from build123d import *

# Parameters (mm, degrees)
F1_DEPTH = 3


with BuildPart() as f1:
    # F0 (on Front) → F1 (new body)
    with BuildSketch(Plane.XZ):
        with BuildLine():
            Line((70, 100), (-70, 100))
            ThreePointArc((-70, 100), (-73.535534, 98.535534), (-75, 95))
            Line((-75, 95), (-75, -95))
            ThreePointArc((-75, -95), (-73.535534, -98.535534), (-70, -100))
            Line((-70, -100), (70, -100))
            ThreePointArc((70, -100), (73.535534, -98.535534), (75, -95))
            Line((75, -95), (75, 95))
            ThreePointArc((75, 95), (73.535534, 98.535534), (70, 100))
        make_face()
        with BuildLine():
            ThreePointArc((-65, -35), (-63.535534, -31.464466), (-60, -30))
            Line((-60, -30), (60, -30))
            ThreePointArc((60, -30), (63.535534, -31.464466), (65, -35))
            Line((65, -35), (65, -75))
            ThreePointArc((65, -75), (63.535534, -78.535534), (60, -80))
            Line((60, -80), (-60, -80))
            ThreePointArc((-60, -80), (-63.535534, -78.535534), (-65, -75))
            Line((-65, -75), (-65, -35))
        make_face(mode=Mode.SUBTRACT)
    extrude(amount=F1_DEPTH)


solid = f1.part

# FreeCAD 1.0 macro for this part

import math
import FreeCAD as App
import Part
import Sketcher
from FreeCAD import Vector
Q = App.Units.Quantity

doc = App.newDocument("Part")
body = doc.addObject("PartDesign::Body", "Body")

sketch1 = body.newObject("Sketcher::SketchObject", "Sketch")
sketch1.AttachmentSupport = (doc.getObject("XZ_Plane"), [""])
sketch1.MapMode = "FlatFace"
sketch1.addGeometry(Part.LineSegment(Vector(70, 100, 0), Vector(-70, 100, 0)), False)
sketch1.addGeometry(Part.ArcOfCircle(Part.Circle(Vector(-70, 95, 0), Vector(0, 0, 1), 5), math.radians(89.999996), math.radians(180.000004)), False)
sketch1.addGeometry(Part.LineSegment(Vector(-75, 95, 0), Vector(-75, -95, 0)), False)
sketch1.addGeometry(Part.ArcOfCircle(Part.Circle(Vector(-70, -95, 0), Vector(0, 0, 1), 5), math.radians(179.999996), math.radians(270.000004)), False)
sketch1.addGeometry(Part.LineSegment(Vector(-70, -100, 0), Vector(70, -100, 0)), False)
sketch1.addGeometry(Part.ArcOfCircle(Part.Circle(Vector(70, -95, 0), Vector(0, 0, 1), 5), math.radians(-90.000004), math.radians(0.000004)), False)
sketch1.addGeometry(Part.LineSegment(Vector(75, -95, 0), Vector(75, 95, 0)), False)
sketch1.addGeometry(Part.ArcOfCircle(Part.Circle(Vector(70, 95, 0), Vector(0, 0, 1), 5), math.radians(-0.000004), math.radians(90.000004)), False)
sketch1.addGeometry(Part.LineSegment(Vector(-65, -75, 0), Vector(-65, -35, 0)), False)
sketch1.addGeometry(Part.ArcOfCircle(Part.Circle(Vector(-60, -35, 0), Vector(0, 0, 1), 5), math.radians(89.999996), math.radians(180.000004)), False)
sketch1.addGeometry(Part.LineSegment(Vector(-60, -30, 0), Vector(60, -30, 0)), False)
sketch1.addGeometry(Part.ArcOfCircle(Part.Circle(Vector(60, -35, 0), Vector(0, 0, 1), 5), math.radians(-0.000004), math.radians(90.000004)), False)
sketch1.addGeometry(Part.LineSegment(Vector(65, -35, 0), Vector(65, -75, 0)), False)
sketch1.addGeometry(Part.ArcOfCircle(Part.Circle(Vector(60, -75, 0), Vector(0, 0, 1), 5), math.radians(-90.000004), math.radians(0.000004)), False)
sketch1.addGeometry(Part.LineSegment(Vector(60, -80, 0), Vector(-60, -80, 0)), False)
sketch1.addGeometry(Part.ArcOfCircle(Part.Circle(Vector(-60, -75, 0), Vector(0, 0, 1), 5), math.radians(179.999996), math.radians(270.000004)), False)
sketch1.addConstraint(Sketcher.Constraint("Tangent", 0, 2, 1, 1))
sketch1.addConstraint(Sketcher.Constraint("Tangent", 1, 2, 2, 1))
sketch1.addConstraint(Sketcher.Constraint("Tangent", 2, 2, 3, 1))
sketch1.addConstraint(Sketcher.Constraint("Tangent", 3, 2, 4, 1))
sketch1.addConstraint(Sketcher.Constraint("Tangent", 4, 2, 5, 1))
sketch1.addConstraint(Sketcher.Constraint("Tangent", 5, 2, 6, 1))
sketch1.addConstraint(Sketcher.Constraint("Tangent", 6, 2, 7, 1))
sketch1.addConstraint(Sketcher.Constraint("Tangent", 7, 2, 0, 1))
sketch1.addConstraint(Sketcher.Constraint("Tangent", 8, 2, 9, 2))
sketch1.addConstraint(Sketcher.Constraint("Tangent", 9, 1, 10, 1))
sketch1.addConstraint(Sketcher.Constraint("Tangent", 10, 2, 11, 2))
sketch1.addConstraint(Sketcher.Constraint("Tangent", 11, 1, 12, 1))
sketch1.addConstraint(Sketcher.Constraint("Tangent", 12, 2, 13, 2))
sketch1.addConstraint(Sketcher.Constraint("Tangent", 13, 1, 14, 1))
sketch1.addConstraint(Sketcher.Constraint("Tangent", 14, 2, 15, 2))
sketch1.addConstraint(Sketcher.Constraint("Tangent", 15, 1, 8, 1))
sketch1.addConstraint(Sketcher.Constraint("Horizontal", 0))
sketch1.addConstraint(Sketcher.Constraint("Vertical", 2))
sketch1.addConstraint(Sketcher.Constraint("Horizontal", 4))
sketch1.addConstraint(Sketcher.Constraint("Vertical", 6))
sketch1.addConstraint(Sketcher.Constraint("Vertical", 8))
sketch1.addConstraint(Sketcher.Constraint("Horizontal", 10))
sketch1.addConstraint(Sketcher.Constraint("Vertical", 12))
sketch1.addConstraint(Sketcher.Constraint("Horizontal", 14))
sketch1.addConstraint(Sketcher.Constraint("Equal", 1, 3))
sketch1.addConstraint(Sketcher.Constraint("Equal", 3, 5))
sketch1.addConstraint(Sketcher.Constraint("Equal", 5, 7))
sketch1.addConstraint(Sketcher.Constraint("Equal", 7, 9))
sketch1.addConstraint(Sketcher.Constraint("Equal", 9, 11))
sketch1.addConstraint(Sketcher.Constraint("Equal", 11, 13))
sketch1.addConstraint(Sketcher.Constraint("Equal", 13, 15))
sketch1.addConstraint(Sketcher.Constraint("Symmetric", 1, 3, 5, 3, -1, 1))
sketch1.addConstraint(Sketcher.Constraint("Radius", 1, Q("5 mm")))
sketch1.addConstraint(Sketcher.Constraint("DistanceX", 0, 2, 0, 1, Q("140 mm")))
sketch1.addConstraint(Sketcher.Constraint("DistanceX", 10, 1, 10, 2, Q("120 mm")))
sketch1.addConstraint(Sketcher.Constraint("DistanceY", 2, 2, 2, 1, Q("190 mm")))
sketch1.addConstraint(Sketcher.Constraint("DistanceY", 8, 1, 8, 2, Q("40 mm")))
sketch1.addConstraint(Sketcher.Constraint("DistanceX", 9, 3, -1, 1, Q("60 mm")))
sketch1.addConstraint(Sketcher.Constraint("DistanceY", 9, 3, -1, 1, Q("35 mm")))
pad1 = body.newObject("PartDesign::Pad", "Pad")
pad1.Profile = sketch1
pad1.Length = 3

doc.recompute()
